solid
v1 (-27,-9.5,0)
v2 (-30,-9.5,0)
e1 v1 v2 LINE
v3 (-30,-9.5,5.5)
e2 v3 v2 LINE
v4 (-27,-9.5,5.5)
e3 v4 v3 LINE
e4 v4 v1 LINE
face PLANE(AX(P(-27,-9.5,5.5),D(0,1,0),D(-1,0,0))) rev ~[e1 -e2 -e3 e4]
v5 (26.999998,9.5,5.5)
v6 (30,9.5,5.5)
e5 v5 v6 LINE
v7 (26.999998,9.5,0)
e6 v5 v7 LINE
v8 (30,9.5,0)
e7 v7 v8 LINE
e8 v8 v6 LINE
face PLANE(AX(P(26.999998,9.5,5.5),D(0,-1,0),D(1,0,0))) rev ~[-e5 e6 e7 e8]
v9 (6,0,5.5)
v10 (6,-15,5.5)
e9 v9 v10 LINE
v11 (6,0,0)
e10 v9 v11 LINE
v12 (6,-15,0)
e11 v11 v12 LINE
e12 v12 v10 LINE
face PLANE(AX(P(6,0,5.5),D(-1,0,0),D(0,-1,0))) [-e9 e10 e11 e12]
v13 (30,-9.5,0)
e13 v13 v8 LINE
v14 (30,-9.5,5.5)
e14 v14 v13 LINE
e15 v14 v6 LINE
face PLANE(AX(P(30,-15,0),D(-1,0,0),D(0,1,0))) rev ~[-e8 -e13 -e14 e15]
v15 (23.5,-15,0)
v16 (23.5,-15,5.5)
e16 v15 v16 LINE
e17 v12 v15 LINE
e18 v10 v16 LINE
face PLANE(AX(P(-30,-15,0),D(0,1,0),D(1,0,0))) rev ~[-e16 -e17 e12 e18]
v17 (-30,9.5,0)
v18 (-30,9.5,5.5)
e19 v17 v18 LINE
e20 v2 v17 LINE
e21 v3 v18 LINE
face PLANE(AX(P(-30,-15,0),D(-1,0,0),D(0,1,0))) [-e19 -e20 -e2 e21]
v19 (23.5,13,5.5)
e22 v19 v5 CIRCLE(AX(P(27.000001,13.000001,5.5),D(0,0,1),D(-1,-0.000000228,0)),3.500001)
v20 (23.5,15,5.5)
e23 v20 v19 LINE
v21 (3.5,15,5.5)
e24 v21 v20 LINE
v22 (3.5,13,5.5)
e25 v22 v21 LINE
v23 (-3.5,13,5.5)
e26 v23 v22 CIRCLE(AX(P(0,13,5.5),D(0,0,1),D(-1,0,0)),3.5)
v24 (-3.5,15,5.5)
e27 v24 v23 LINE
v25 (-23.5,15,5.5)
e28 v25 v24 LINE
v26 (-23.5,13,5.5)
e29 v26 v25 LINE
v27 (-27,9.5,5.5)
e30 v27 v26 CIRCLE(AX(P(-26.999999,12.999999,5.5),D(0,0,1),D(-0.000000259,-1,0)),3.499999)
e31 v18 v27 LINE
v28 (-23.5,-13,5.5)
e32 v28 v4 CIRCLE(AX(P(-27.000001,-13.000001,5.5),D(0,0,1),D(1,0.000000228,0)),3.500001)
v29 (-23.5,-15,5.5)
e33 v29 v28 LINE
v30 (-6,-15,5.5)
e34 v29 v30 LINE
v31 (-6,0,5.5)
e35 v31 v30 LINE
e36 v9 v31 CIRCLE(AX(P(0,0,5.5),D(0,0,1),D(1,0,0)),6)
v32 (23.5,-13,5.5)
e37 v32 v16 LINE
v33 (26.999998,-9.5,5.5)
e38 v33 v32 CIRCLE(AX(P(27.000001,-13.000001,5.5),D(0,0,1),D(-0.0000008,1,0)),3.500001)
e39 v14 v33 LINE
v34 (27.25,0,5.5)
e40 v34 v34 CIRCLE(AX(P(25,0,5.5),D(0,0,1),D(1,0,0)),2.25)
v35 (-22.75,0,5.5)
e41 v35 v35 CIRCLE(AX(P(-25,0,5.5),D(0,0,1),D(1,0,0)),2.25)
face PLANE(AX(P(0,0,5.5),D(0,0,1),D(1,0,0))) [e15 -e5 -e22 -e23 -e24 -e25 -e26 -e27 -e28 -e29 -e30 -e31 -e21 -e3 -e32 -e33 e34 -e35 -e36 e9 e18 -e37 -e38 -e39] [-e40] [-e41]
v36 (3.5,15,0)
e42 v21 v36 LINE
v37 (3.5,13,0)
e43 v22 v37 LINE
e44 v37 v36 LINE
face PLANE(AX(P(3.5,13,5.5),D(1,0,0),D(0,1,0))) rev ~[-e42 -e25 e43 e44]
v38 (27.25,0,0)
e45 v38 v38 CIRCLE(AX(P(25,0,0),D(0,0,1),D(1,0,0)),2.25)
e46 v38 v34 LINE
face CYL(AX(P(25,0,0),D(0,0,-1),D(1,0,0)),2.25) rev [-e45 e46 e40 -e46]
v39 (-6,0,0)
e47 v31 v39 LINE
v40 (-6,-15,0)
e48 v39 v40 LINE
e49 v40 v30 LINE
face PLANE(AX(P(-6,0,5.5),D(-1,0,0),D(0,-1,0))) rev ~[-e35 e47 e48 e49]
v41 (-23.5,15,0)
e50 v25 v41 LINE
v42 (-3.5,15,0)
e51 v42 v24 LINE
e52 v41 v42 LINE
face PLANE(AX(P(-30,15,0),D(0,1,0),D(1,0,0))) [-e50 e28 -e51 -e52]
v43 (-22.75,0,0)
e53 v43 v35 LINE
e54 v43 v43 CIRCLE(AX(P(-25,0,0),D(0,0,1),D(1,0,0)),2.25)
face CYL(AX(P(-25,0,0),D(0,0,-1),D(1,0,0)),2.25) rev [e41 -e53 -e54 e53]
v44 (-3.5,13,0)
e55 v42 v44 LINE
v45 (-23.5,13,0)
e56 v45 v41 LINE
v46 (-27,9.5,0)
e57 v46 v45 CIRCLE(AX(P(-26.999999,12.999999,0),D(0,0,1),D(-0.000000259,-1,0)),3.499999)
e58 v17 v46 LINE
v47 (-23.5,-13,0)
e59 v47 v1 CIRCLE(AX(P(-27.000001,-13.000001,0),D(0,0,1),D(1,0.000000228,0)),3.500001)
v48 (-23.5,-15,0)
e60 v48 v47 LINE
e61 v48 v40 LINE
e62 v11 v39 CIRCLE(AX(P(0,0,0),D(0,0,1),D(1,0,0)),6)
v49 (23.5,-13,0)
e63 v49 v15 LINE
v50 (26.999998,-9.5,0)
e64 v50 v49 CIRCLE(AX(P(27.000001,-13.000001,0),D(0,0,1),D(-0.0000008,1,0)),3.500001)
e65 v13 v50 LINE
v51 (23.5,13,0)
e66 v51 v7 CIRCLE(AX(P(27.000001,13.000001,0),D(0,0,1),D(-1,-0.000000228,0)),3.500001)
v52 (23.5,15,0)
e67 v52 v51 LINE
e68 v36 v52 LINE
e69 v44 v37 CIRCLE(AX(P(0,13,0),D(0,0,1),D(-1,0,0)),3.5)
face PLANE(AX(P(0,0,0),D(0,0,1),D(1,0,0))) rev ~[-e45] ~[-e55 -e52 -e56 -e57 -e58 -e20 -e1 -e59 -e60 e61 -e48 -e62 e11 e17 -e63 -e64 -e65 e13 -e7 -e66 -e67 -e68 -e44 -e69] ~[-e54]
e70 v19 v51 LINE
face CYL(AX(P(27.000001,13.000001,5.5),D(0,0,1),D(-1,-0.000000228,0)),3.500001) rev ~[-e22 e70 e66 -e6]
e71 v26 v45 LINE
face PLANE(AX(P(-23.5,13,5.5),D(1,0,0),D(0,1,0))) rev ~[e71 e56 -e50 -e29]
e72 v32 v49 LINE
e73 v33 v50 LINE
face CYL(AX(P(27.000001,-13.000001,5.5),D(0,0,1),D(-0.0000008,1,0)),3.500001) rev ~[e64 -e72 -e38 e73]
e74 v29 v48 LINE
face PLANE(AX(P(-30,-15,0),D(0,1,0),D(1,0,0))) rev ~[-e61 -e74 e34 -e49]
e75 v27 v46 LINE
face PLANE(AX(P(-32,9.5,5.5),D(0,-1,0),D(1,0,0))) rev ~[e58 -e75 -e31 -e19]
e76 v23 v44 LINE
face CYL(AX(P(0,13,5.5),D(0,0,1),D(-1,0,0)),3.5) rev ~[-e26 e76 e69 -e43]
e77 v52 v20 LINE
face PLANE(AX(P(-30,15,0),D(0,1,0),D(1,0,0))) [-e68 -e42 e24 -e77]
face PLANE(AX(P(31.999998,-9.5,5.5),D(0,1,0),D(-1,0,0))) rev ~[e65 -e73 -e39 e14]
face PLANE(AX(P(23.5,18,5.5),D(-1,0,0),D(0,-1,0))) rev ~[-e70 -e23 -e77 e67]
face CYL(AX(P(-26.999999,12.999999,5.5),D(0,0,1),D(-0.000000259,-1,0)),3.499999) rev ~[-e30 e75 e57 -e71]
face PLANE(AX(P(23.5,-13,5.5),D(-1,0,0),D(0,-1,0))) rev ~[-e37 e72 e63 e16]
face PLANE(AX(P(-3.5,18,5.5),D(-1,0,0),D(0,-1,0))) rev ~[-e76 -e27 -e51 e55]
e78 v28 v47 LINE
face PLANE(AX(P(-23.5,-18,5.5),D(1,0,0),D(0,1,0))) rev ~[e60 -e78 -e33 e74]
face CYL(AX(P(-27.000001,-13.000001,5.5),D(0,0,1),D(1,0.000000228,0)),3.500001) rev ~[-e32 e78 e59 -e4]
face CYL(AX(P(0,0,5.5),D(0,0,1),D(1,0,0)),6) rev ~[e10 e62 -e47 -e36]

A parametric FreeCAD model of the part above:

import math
import FreeCAD as App
import Part
import Sketcher
from FreeCAD import Vector
Q = App.Units.Quantity

doc = App.newDocument("Part")
params = doc.addObject("Spreadsheet::Sheet", "Params")
for row, (alias, value) in enumerate([
    ("sketch1_diameter", "4.5 mm"),
    ("sketch1_diameter2", "4.1 mm"),
    ("sketch1_width", "60 mm"),
    ("sketch1_height", "30 mm"),
    ("pad1_length", "5.5 mm"),
    ("sketch2_radius", "6 mm"),
    ("sketch2_radius2", "3.499999 mm"),
    ("sketch2_width", "75 mm"),
    ("sketch2_width2", "5 mm"),
    ("sketch2_width3", "20 mm"),
], start=1):
    params.set(f"A{row}", alias)
    params.set(f"B{row}", "=" + value)
    params.setAlias(f"B{row}", alias)

body = doc.addObject("PartDesign::Body", "Body")

# Sketch on XY plane
sketch1 = doc.addObject("Sketcher::SketchObject", "Sketch")
body.addObject(sketch1)
sketch1.AttachmentSupport = (doc.XY_Plane, [""])
sketch1.MapMode = "FlatFace"
sketch1.addGeometry([
    Part.LineSegment(Vector(-30, 15, 0), Vector(-30, -15, 0)),  # 0
    Part.LineSegment(Vector(-30, -15, 0), Vector(30, -15, 0)),  # 1
    Part.LineSegment(Vector(30, -15, 0), Vector(30, 15, 0)),  # 2
    Part.LineSegment(Vector(30, 15, 0), Vector(-30, 15, 0)),  # 3
    Part.Circle(Vector(-25, 0, 0), Vector(0, 0, 1), 2.2),  # 4
    Part.Circle(Vector(0, 0, 0), Vector(0, 0, 1), 2),  # 5
    Part.Circle(Vector(25, 0, 0), Vector(0, 0, 1), 2.2),  # 6
], False)
sketch1.addConstraint([
    Sketcher.Constraint("Coincident", 0, 2, 1, 1),
    Sketcher.Constraint("Coincident", 1, 2, 2, 1),
    Sketcher.Constraint("Coincident", 2, 2, 3, 1),
    Sketcher.Constraint("Coincident", 3, 2, 0, 1),
    Sketcher.Constraint("Vertical", 0),
    Sketcher.Constraint("Horizontal", 1),
    Sketcher.Constraint("Vertical", 2),
    Sketcher.Constraint("Horizontal", 3),
    Sketcher.Constraint("Coincident", 5, 3, -1, 1),
    Sketcher.Constraint("Equal", 4, 6),
    Sketcher.Constraint("Symmetric", 4, 3, 6, 3, -1, 1),
    Sketcher.Constraint("Symmetric", 0, 2, 2, 2, -1, 1),
    Sketcher.Constraint("PointOnObject", 4, 3, -1),
    Sketcher.Constraint("Diameter", 4, Q("4.5 mm")),
    Sketcher.Constraint("Diameter", 5, Q("4.1 mm")),
    Sketcher.Constraint("DistanceX", 1, 1, 1, 2, Q("60 mm")),
    Sketcher.Constraint("DistanceY", 0, 2, 0, 1, Q("30 mm")),
    Sketcher.Constraint("DistanceX", 4, 3, -1, 1, Q("25 mm")),
])
sketch1.setExpression("Constraints[13]", "Params.sketch1_diameter")
sketch1.setExpression("Constraints[14]", "Params.sketch1_diameter2")
sketch1.setExpression("Constraints[15]", "Params.sketch1_width")
sketch1.setExpression("Constraints[16]", "Params.sketch1_height")
pad1 = doc.addObject("PartDesign::Pad", "Pad")
body.addObject(pad1)
pad1.Profile = sketch1
pad1.setExpression("Length", "Params.pad1_length")

# Sketch on XY plane
sketch2 = doc.addObject("Sketcher::SketchObject", "Sketch001")
body.addObject(sketch2)
sketch2.AttachmentSupport = (doc.XY_Plane, [""])
sketch2.MapMode = "FlatFace"
sketch2.AttachmentOffset = App.Placement(Vector(0, 0, 5.5), App.Rotation())
sketch2.addGeometry([
    Part.LineSegment(Vector(-37.5, 22.5, 0), Vector(-37.5, -22.5, 0)),  # 0
    Part.LineSegment(Vector(-37.5, -22.5, 0), Vector(37.5, -22.5, 0)),  # 1
    Part.LineSegment(Vector(37.5, -22.5, 0), Vector(37.5, 22.5, 0)),  # 2
    Part.LineSegment(Vector(37.5, 22.5, 0), Vector(-37.5, 22.5, 0)),  # 3
    Part.LineSegment(Vector(-32, 9.5, 0), Vector(-27, 9.5, 0)),  # 4
    Part.ArcOfCircle(Part.Circle(Vector(-27, 13, 0), Vector(0, 0, 1), 3.5), math.radians(-90), math.radians(0)),  # 5
    Part.LineSegment(Vector(-23.5, 13, 0), Vector(-23.5, 18, 0)),  # 6
    Part.LineSegment(Vector(-23.5, 18, 0), Vector(-3.5, 18, 0)),  # 7
    Part.LineSegment(Vector(-3.5, 18, 0), Vector(-3.5, 13, 0)),  # 8
    Part.ArcOfCircle(Part.Circle(Vector(0, 13, 0), Vector(0, 0, 1), 3.5), math.radians(180), math.radians(360)),  # 9
    Part.LineSegment(Vector(3.5, 13, 0), Vector(3.5, 18, 0)),  # 10
    Part.LineSegment(Vector(3.5, 18, 0), Vector(23.5, 18, 0)),  # 11
    Part.LineSegment(Vector(23.5, 18, 0), Vector(23.5, 13, 0)),  # 12
    Part.ArcOfCircle(Part.Circle(Vector(27, 13, 0), Vector(0, 0, 1), 3.5), math.radians(-180), math.radians(-90)),  # 13
    Part.LineSegment(Vector(27, 9.5, 0), Vector(32, 9.5, 0)),  # 14
    Part.LineSegment(Vector(32, 9.5, 0), Vector(32, -9.5, 0)),  # 15
    Part.LineSegment(Vector(32, -9.5, 0), Vector(27, -9.5, 0)),  # 16
    Part.ArcOfCircle(Part.Circle(Vector(27, -13, 0), Vector(0, 0, 1), 3.5), math.radians(90), math.radians(180)),  # 17
    Part.LineSegment(Vector(23.5, -13, 0), Vector(23.5, -18, 0)),  # 18
    Part.LineSegment(Vector(23.5, -18, 0), Vector(6, -18, 0)),  # 19
    Part.LineSegment(Vector(6, -18, 0), Vector(6, 0, 0)),  # 20
    Part.ArcOfCircle(Part.Circle(Vector(0, 0, 0), Vector(0, 0, 1), 6), math.radians(0), math.radians(180)),  # 21
    Part.LineSegment(Vector(-6, 0, 0), Vector(-6, -18, 0)),  # 22
    Part.LineSegment(Vector(-6, -18, 0), Vector(-23.5, -18, 0)),  # 23
    Part.LineSegment(Vector(-23.5, -18, 0), Vector(-23.5, -13, 0)),  # 24
    Part.ArcOfCircle(Part.Circle(Vector(-27, -13, 0), Vector(0, 0, 1), 3.5), math.radians(0), math.radians(90)),  # 25
    Part.LineSegment(Vector(-27, -9.5, 0), Vector(-32, -9.5, 0)),  # 26
    Part.LineSegment(Vector(-32, -9.5, 0), Vector(-32, 9.5, 0)),  # 27
], False)
sketch2.addConstraint([
    Sketcher.Constraint("Coincident", 0, 2, 1, 1),
    Sketcher.Constraint("Coincident", 1, 2, 2, 1),
    Sketcher.Constraint("Coincident", 2, 2, 3, 1),
    Sketcher.Constraint("Coincident", 3, 2, 0, 1),
    Sketcher.Constraint("Tangent", 4, 2, 5, 1),
    Sketcher.Constraint("Tangent", 5, 2, 6, 1),
    Sketcher.Constraint("Coincident", 6, 2, 7, 1),
    Sketcher.Constraint("Coincident", 7, 2, 8, 1),
    Sketcher.Constraint("Tangent", 8, 2, 9, 1),
    Sketcher.Constraint("Tangent", 9, 2, 10, 1),
    Sketcher.Constraint("Coincident", 10, 2, 11, 1),
    Sketcher.Constraint("Coincident", 11, 2, 12, 1),
    Sketcher.Constraint("Tangent", 12, 2, 13, 1),
    Sketcher.Constraint("Tangent", 13, 2, 14, 1),
    Sketcher.Constraint("Coincident", 14, 2, 15, 1),
    Sketcher.Constraint("Coincident", 15, 2, 16, 1),
    Sketcher.Constraint("Tangent", 16, 2, 17, 1),
    Sketcher.Constraint("Tangent", 17, 2, 18, 1),
    Sketcher.Constraint("Coincident", 18, 2, 19, 1),
    Sketcher.Constraint("Coincident", 19, 2, 20, 1),
    Sketcher.Constraint("Tangent", 20, 2, 21, 1),
    Sketcher.Constraint("Tangent", 21, 2, 22, 1),
    Sketcher.Constraint("Coincident", 22, 2, 23, 1),
    Sketcher.Constraint("Coincident", 23, 2, 24, 1),
    Sketcher.Constraint("Tangent", 24, 2, 25, 1),
    Sketcher.Constraint("Tangent", 25, 2, 26, 1),
    Sketcher.Constraint("Coincident", 26, 2, 27, 1),
    Sketcher.Constraint("Coincident", 27, 2, 4, 1),
    Sketcher.Constraint("Vertical", 0),
    Sketcher.Constraint("Horizontal", 1),
    Sketcher.Constraint("Vertical", 2),
    Sketcher.Constraint("Horizontal", 3),
    Sketcher.Constraint("Horizontal", 4),
    Sketcher.Constraint("Vertical", 6),
    Sketcher.Constraint("Horizontal", 7),
    Sketcher.Constraint("Vertical", 8),
    Sketcher.Constraint("Vertical", 10),
    Sketcher.Constraint("Horizontal", 11),
    Sketcher.Constraint("Vertical", 12),
    Sketcher.Constraint("Horizontal", 14),
    Sketcher.Constraint("Vertical", 15),
    Sketcher.Constraint("Horizontal", 16),
    Sketcher.Constraint("Vertical", 18),
    Sketcher.Constraint("Horizontal", 19),
    Sketcher.Constraint("Vertical", 20),
    Sketcher.Constraint("Vertical", 22),
    Sketcher.Constraint("Horizontal", 23),
    Sketcher.Constraint("Vertical", 24),
    Sketcher.Constraint("Horizontal", 26),
    Sketcher.Constraint("Vertical", 27),
    Sketcher.Constraint("Coincident", 21, 3, -1, 1),
    Sketcher.Constraint("Equal", 5, 9),
    Sketcher.Constraint("Equal", 9, 13),
    Sketcher.Constraint("Equal", 13, 17),
    Sketcher.Constraint("Equal", 17, 25),
    Sketcher.Constraint("Symmetric", 5, 3, 17, 3, -1, 1),
    Sketcher.Constraint("Symmetric", 13, 3, 25, 3, -1, 1),
    Sketcher.Constraint("Symmetric", 0, 2, 2, 2, -1, 1),
    Sketcher.Constraint("Symmetric", 5, 3, 13, 3, -2),
    Sketcher.Constraint("Symmetric", 7, 2, 10, 2, -2),
    Sketcher.Constraint("Horizontal", 5, 3, 9, 3),
    Sketcher.Constraint("Horizontal", 19, 2, 22, 2),
    Sketcher.Constraint("Equal", 4, 14),
    Sketcher.Constraint("Equal", 26, 6),
    Sketcher.Constraint("Equal", 12, 18),
    Sketcher.Constraint("Radius", 21, Q("6 mm")),
    Sketcher.Constraint("Radius", 5, Q("3.499999 mm")),
    Sketcher.Constraint("DistanceX", 1, 1, 1, 2, Q("75 mm")),
    Sketcher.Constraint("DistanceX", 4, 1, 4, 2, Q("5 mm")),
    Sketcher.Constraint("DistanceX", 7, 1, 7, 2, Q("20 mm")),
    Sketcher.Constraint("DistanceY", 0, 2, 0, 1, Q("45 mm")),
    Sketcher.Constraint("DistanceY", 15, 2, 15, 1, Q("19 mm")),
])
sketch2.setExpression("Constraints[65]", "Params.sketch2_radius")
sketch2.setExpression("Constraints[66]", "Params.sketch2_radius2")
sketch2.setExpression("Constraints[67]", "Params.sketch2_width")
sketch2.setExpression("Constraints[68]", "Params.sketch2_width2")
sketch2.setExpression("Constraints[69]", "Params.sketch2_width3")
pocket1 = doc.addObject("PartDesign::Pocket", "Pocket")
body.addObject(pocket1)
pocket1.Profile = sketch2
pocket1.Type = "ThroughAll"

doc.recompute()
